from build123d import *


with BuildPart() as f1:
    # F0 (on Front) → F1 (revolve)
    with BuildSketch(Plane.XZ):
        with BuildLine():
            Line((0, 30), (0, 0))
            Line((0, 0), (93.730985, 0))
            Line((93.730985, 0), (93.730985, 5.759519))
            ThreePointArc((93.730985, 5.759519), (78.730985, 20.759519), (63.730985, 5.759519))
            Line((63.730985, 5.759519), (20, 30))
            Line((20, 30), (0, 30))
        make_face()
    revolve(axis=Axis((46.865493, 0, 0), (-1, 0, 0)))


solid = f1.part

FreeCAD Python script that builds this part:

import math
import FreeCAD as App
import Part
import Sketcher
Q = App.Units.Quantity

doc = App.newDocument("Part")
body = doc.addObject("PartDesign::Body", "Body")

# Sketch on XZ plane
sketch1 = body.newObject("Sketcher::SketchObject", "Sketch")
sketch1.AttachmentSupport = (doc.getObject("XZ_Plane"), [""])
sketch1.MapMode = "FlatFace"
sketch1.addGeometry([
    Part.LineSegment(App.Vector(0, 30, 0), App.Vector(0, 0, 0)),  # 0
    Part.LineSegment(App.Vector(0, 0, 0), App.Vector(94, 0, 0)),  # 1
    Part.LineSegment(App.Vector(94, 0, 0), App.Vector(94, 6, 0)),  # 2
    Part.ArcOfCircle(Part.Circle(App.Vector(79, 6, 0), App.Vector(0, 0, 1), 15), math.radians(0), math.radians(180)),  # 3
    Part.LineSegment(App.Vector(64, 6, 0), App.Vector(20, 30, 0)),  # 4
    Part.LineSegment(App.Vector(20, 30, 0), App.Vector(0, 30, 0)),  # 5
], False)
sketch1.addConstraint([
    Sketcher.Constraint("Coincident", 0, 2, 1, 1),
    Sketcher.Constraint("Coincident", 1, 2, 2, 1),
    Sketcher.Constraint("Tangent", 2, 2, 3, 1),
    Sketcher.Constraint("Coincident", 3, 2, 4, 1),
    Sketcher.Constraint("Coincident", 4, 2, 5, 1),
    Sketcher.Constraint("Coincident", 5, 2, 0, 1),
    Sketcher.Constraint("Vertical", 0),
    Sketcher.Constraint("Horizontal", 1),
    Sketcher.Constraint("Vertical", 2),
    Sketcher.Constraint("Horizontal", 5),
    Sketcher.Constraint("Coincident", 0, 2, -1, 1),
    Sketcher.Constraint("Horizontal", 2, 2, 3, 2),
    Sketcher.Constraint("Radius", 3, 15.0),
    Sketcher.Constraint("DistanceX", 5, 2, 5, 1, 20.0),
    Sketcher.Constraint("DistanceY", 0, 2, 0, 1, 30.0),
    Sketcher.Constraint("Angle", 4, Q("151 deg")),
    Sketcher.Constraint("Distance", 4, 50.0),
])
revolution = body.newObject("PartDesign::Revolution", "Revolution")
revolution.Profile = sketch1
revolution.ReferenceAxis = (sketch1, ["H_Axis"])
revolution.Angle = 360

doc.recompute()
